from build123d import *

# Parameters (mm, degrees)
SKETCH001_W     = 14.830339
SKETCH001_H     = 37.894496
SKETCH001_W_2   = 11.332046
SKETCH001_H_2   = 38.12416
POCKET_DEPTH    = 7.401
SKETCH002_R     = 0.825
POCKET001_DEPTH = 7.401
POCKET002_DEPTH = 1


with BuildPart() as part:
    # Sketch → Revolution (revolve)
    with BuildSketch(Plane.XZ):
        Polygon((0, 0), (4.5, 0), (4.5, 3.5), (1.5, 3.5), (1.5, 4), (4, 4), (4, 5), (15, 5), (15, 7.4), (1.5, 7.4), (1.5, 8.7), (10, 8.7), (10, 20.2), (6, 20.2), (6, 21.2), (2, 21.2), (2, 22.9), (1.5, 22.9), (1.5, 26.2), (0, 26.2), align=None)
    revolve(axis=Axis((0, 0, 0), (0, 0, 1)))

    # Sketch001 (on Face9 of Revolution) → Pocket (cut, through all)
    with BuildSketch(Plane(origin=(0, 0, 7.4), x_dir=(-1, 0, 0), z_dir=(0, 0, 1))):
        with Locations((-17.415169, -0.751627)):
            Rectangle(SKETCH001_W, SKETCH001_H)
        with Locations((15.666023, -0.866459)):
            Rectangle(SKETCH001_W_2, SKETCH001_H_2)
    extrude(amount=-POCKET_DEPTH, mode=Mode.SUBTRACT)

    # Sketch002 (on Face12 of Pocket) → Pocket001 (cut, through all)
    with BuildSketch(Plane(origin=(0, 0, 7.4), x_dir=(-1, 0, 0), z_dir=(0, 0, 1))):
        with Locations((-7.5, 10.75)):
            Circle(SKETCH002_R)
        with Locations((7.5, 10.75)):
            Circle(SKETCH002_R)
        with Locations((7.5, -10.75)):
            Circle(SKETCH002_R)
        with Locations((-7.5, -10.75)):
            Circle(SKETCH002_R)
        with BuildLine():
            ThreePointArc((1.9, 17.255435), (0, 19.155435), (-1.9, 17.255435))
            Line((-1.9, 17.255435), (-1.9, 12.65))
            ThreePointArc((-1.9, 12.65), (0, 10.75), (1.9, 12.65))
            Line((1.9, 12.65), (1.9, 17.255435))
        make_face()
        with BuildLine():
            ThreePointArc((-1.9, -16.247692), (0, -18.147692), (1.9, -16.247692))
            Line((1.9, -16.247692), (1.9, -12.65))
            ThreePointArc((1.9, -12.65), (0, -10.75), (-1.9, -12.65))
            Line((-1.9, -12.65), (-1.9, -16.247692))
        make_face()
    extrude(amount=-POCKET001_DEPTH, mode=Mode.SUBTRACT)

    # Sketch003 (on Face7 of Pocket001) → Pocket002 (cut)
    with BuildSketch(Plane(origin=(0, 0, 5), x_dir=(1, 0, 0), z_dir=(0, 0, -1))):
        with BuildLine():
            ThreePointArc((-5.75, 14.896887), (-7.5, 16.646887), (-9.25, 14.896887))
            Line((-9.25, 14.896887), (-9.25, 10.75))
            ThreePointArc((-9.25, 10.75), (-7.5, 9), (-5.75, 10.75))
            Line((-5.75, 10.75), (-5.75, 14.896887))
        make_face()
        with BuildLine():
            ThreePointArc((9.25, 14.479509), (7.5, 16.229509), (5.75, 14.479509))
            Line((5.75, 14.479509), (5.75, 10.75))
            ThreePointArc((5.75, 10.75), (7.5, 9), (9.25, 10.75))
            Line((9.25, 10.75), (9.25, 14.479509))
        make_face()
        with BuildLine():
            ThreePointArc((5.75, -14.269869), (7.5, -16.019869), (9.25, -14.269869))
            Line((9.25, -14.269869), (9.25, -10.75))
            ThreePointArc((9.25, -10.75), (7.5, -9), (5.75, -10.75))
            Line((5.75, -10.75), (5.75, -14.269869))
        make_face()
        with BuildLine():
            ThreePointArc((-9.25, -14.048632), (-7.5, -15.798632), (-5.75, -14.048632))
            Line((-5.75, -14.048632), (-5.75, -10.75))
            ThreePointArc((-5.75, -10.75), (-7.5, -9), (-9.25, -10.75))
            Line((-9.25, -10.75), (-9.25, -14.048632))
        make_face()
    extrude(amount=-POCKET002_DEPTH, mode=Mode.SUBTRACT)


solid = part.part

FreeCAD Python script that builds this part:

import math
import FreeCAD as App
import Part
import Sketcher

V = App.Vector
Q = App.Units.Quantity


def add_polygon(sketch, points):
    """Adds a closed chain of lines whose ends are joined by coincident constraints."""
    first, n = sketch.GeometryCount, len(points)
    for a, b in zip(points, points[1:] + points[:1]):
        sketch.addGeometry(Part.LineSegment(App.Vector(*a, 0), App.Vector(*b, 0)), False)
    for i in range(n):
        sketch.addConstraint(Sketcher.Constraint("Coincident", first + i, 2, first + (i + 1) % n, 1))

doc = App.newDocument("Part")
body = doc.addObject("PartDesign::Body", "Body")

sketch1 = body.newObject("Sketcher::SketchObject", "Sketch")
sketch1.AttachmentSupport = (doc.getObject("XZ_Plane"), [""])
sketch1.MapMode = "FlatFace"
add_polygon(sketch1, [(0, 0), (4.5, 0), (4.5, 3.5), (1.5, 3.5), (1.5, 4), (4, 4), (4, 5), (15, 5), (15, 7.4), (1.5, 7.4), (1.5, 8.7), (10, 8.7), (10, 20.2), (6, 20.2), (6, 21.2), (2, 21.2), (2, 22.9), (1.5, 22.9), (1.5, 26.2), (0, 26.2)])
sketch1.addConstraint(Sketcher.Constraint("Horizontal", 0))
sketch1.addConstraint(Sketcher.Constraint("Vertical", 1))
sketch1.addConstraint(Sketcher.Constraint("Horizontal", 2))
sketch1.addConstraint(Sketcher.Constraint("Vertical", 3))
sketch1.addConstraint(Sketcher.Constraint("Horizontal", 4))
sketch1.addConstraint(Sketcher.Constraint("Vertical", 5))
sketch1.addConstraint(Sketcher.Constraint("Horizontal", 6))
sketch1.addConstraint(Sketcher.Constraint("Vertical", 7))
sketch1.addConstraint(Sketcher.Constraint("Horizontal", 8))
sketch1.addConstraint(Sketcher.Constraint("Vertical", 9))
sketch1.addConstraint(Sketcher.Constraint("Horizontal", 10))
sketch1.addConstraint(Sketcher.Constraint("Vertical", 11))
sketch1.addConstraint(Sketcher.Constraint("Horizontal", 12))
sketch1.addConstraint(Sketcher.Constraint("Vertical", 13))
sketch1.addConstraint(Sketcher.Constraint("Horizontal", 14))
sketch1.addConstraint(Sketcher.Constraint("Vertical", 15))
sketch1.addConstraint(Sketcher.Constraint("Horizontal", 16))
sketch1.addConstraint(Sketcher.Constraint("Vertical", 17))
sketch1.addConstraint(Sketcher.Constraint("Horizontal", 18))
sketch1.addConstraint(Sketcher.Constraint("Vertical", 19))
sketch1.addConstraint(Sketcher.Constraint("Coincident", 19, 2, -1, 1))
sketch1.addConstraint(Sketcher.Constraint("Vertical", 3, 2, 8, 2))
sketch1.addConstraint(Sketcher.Constraint("Vertical", 9, 2, 16, 2))
sketch1.addConstraint(Sketcher.Constraint("Equal", 12, 14))
sketch1.addConstraint(Sketcher.Constraint("Equal", 16, 3))
sketch1.addConstraint(Sketcher.Constraint("Equal", 5, 13))
sketch1.addConstraint(Sketcher.Constraint("DistanceX", 2, 2, 2, 1, Q("3 mm")))
sketch1.addConstraint(Sketcher.Constraint("DistanceX", 6, 1, 6, 2, Q("11 mm")))
sketch1.addConstraint(Sketcher.Constraint("DistanceX", 12, 2, 12, 1, Q("4 mm")))
sketch1.addConstraint(Sketcher.Constraint("DistanceY", 5, 1, 5, 2, Q("1 mm")))
sketch1.addConstraint(Sketcher.Constraint("DistanceX", 0, 1, 0, 2, Q("4.5 mm")))
sketch1.addConstraint(Sketcher.Constraint("DistanceX", 4, 1, 4, 2, Q("2.5 mm")))
sketch1.addConstraint(Sketcher.Constraint("DistanceX", 10, 1, 10, 2, Q("8.5 mm")))
sketch1.addConstraint(Sketcher.Constraint("DistanceY", 1, 1, 1, 2, Q("3.5 mm")))
sketch1.addConstraint(Sketcher.Constraint("DistanceY", 7, 1, 7, 2, Q("2.4 mm")))
sketch1.addConstraint(Sketcher.Constraint("DistanceY", 9, 1, 9, 2, Q("1.3 mm")))
sketch1.addConstraint(Sketcher.Constraint("DistanceY", 11, 1, 11, 2, Q("11.5 mm")))
sketch1.addConstraint(Sketcher.Constraint("DistanceY", 15, 1, 15, 2, Q("1.7 mm")))
sketch1.addConstraint(Sketcher.Constraint("DistanceY", 17, 1, 17, 2, Q("3.3 mm")))
revolution = body.newObject("PartDesign::Revolution", "Revolution")
revolution.Profile = sketch1
revolution.ReferenceAxis = (sketch1, ["V_Axis"])
revolution.Angle = 360

sketch2 = body.newObject("Sketcher::SketchObject", "Sketch001")
sketch2.AttachmentSupport = (doc.getObject("XY_Plane"), [""])
sketch2.MapMode = "FlatFace"
sketch2.AttachmentOffset = App.Placement(V(0, 0, 7.4), App.Rotation())
add_polygon(sketch2, [(25, -18), (25, 20), (10, 20), (10, -18)])
add_polygon(sketch2, [(-10, -18), (-10, 20), (-21, 20), (-21, -18)])
sketch2.addConstraint(Sketcher.Constraint("Vertical", 0))
sketch2.addConstraint(Sketcher.Constraint("Horizontal", 1))
sketch2.addConstraint(Sketcher.Constraint("Vertical", 2))
sketch2.addConstraint(Sketcher.Constraint("Horizontal", 3))
sketch2.addConstraint(Sketcher.Constraint("Vertical", 4))
sketch2.addConstraint(Sketcher.Constraint("Horizontal", 5))
sketch2.addConstraint(Sketcher.Constraint("Vertical", 6))
sketch2.addConstraint(Sketcher.Constraint("Horizontal", 7))
sketch2.addConstraint(Sketcher.Constraint("Symmetric", 2, 2, 7, 2, -2))
sketch2.addConstraint(Sketcher.Constraint("DistanceX", -1, 1, 1, 2, Q("9.999999 mm")))
sketch2.addConstraint(Sketcher.Constraint("DistanceX", 1, 2, 1, 1, Q("14.830339 mm")))
sketch2.addConstraint(Sketcher.Constraint("DistanceY", 4, 1, 4, 2, Q("38.12416 mm")))
sketch2.addConstraint(Sketcher.Constraint("DistanceX", 5, 2, 5, 1, Q("11.332046 mm")))
sketch2.addConstraint(Sketcher.Constraint("DistanceY", 0, 1, 0, 2, Q("37.894496 mm")))
sketch2.addConstraint(Sketcher.Constraint("DistanceY", 2, 2, -1, 1, Q("18.195621 mm")))
pocket1 = body.newObject("PartDesign::Pocket", "Pocket")
pocket1.Profile = sketch2
pocket1.Type = "ThroughAll"

sketch3 = body.newObject("Sketcher::SketchObject", "Sketch002")
sketch3.AttachmentSupport = (doc.getObject("XY_Plane"), [""])
sketch3.MapMode = "FlatFace"
sketch3.AttachmentOffset = App.Placement(V(0, 0, 7.4), App.Rotation())
sketch3.addGeometry(Part.Circle(V(7.5, -10.8, 0), V(0, 0, 1), 0.8), False)
sketch3.addGeometry(Part.Circle(V(-7.5, -10.8, 0), V(0, 0, 1), 0.8), False)
sketch3.addGeometry(Part.Circle(V(-7.5, 10.8, 0), V(0, 0, 1), 0.8), False)
sketch3.addGeometry(Part.Circle(V(7.5, 10.8, 0), V(0, 0, 1), 0.8), False)
sketch3.addGeometry(Part.ArcOfCircle(Part.Circle(V(0, -17.3, 0), V(0, 0, 1), 1.9), math.radians(180), math.radians(360)), False)
sketch3.addGeometry(Part.LineSegment(V(1.9, -17.3, 0), V(1.9, -12.7, 0)), False)
sketch3.addGeometry(Part.ArcOfCircle(Part.Circle(V(0, -12.7, 0), V(0, 0, 1), 1.9), math.radians(0), math.radians(180)), False)
sketch3.addGeometry(Part.LineSegment(V(-1.9, -12.7, 0), V(-1.9, -17.3, 0)), False)
sketch3.addGeometry(Part.ArcOfCircle(Part.Circle(V(0, 16.2, 0), V(0, 0, 1), 1.9), math.radians(0), math.radians(180)), False)
sketch3.addGeometry(Part.LineSegment(V(-1.9, 16.2, 0), V(-1.9, 12.7, 0)), False)
sketch3.addGeometry(Part.ArcOfCircle(Part.Circle(V(0, 12.7, 0), V(0, 0, 1), 1.9), math.radians(180), math.radians(360)), False)
sketch3.addGeometry(Part.LineSegment(V(1.9, 12.7, 0), V(1.9, 16.2, 0)), False)
sketch3.addConstraint(Sketcher.Constraint("Tangent", 4, 2, 5, 1))
sketch3.addConstraint(Sketcher.Constraint("Tangent", 5, 2, 6, 1))
sketch3.addConstraint(Sketcher.Constraint("Tangent", 6, 2, 7, 1))
sketch3.addConstraint(Sketcher.Constraint("Tangent", 7, 2, 4, 1))
sketch3.addConstraint(Sketcher.Constraint("Tangent", 8, 2, 9, 1))
sketch3.addConstraint(Sketcher.Constraint("Tangent", 9, 2, 10, 1))
sketch3.addConstraint(Sketcher.Constraint("Tangent", 10, 2, 11, 1))
sketch3.addConstraint(Sketcher.Constraint("Tangent", 11, 2, 8, 1))
sketch3.addConstraint(Sketcher.Constraint("Vertical", 5))
sketch3.addConstraint(Sketcher.Constraint("Vertical", 7))
sketch3.addConstraint(Sketcher.Constraint("Vertical", 9))
sketch3.addConstraint(Sketcher.Constraint("Vertical", 11))
sketch3.addConstraint(Sketcher.Constraint("Equal", 0, 1))
sketch3.addConstraint(Sketcher.Constraint("Equal", 1, 2))
sketch3.addConstraint(Sketcher.Constraint("Equal", 2, 3))
sketch3.addConstraint(Sketcher.Constraint("Equal", 6, 8))
sketch3.addConstraint(Sketcher.Constraint("Symmetric", 0, 3, 2, 3, -1, 1))
sketch3.addConstraint(Sketcher.Constraint("Symmetric", 1, 3, 3, 3, -1, 1))
sketch3.addConstraint(Sketcher.Constraint("Symmetric", 6, 3, 10, 3, -1, 1))
sketch3.addConstraint(Sketcher.Constraint("Symmetric", 0, 3, 1, 3, -2))
sketch3.addConstraint(Sketcher.Constraint("PointOnObject", 4, 3, -2))
sketch3.addConstraint(Sketcher.Constraint("Radius", 4, Q("1.9 mm")))
sketch3.addConstraint(Sketcher.Constraint("Diameter", 0, Q("1.65 mm")))
sketch3.addConstraint(Sketcher.Constraint("DistanceX", 1, 3, 0, 3, Q("15 mm")))
sketch3.addConstraint(Sketcher.Constraint("DistanceY", 1, 3, 2, 3, Q("21.5 mm")))
sketch3.addConstraint(Sketcher.Constraint("DistanceY", 6, 3, 0, 3, Q("1.9 mm")))
sketch3.addConstraint(Sketcher.Constraint("DistanceY", 5, 1, 5, 2, Q("4.605435 mm")))
sketch3.addConstraint(Sketcher.Constraint("DistanceY", 9, 2, 9, 1, Q("3.597692 mm")))
pocket2 = body.newObject("PartDesign::Pocket", "Pocket001")
pocket2.Profile = sketch3
pocket2.Type = "ThroughAll"

sketch4 = body.newObject("Sketcher::SketchObject", "Sketch003")
sketch4.AttachmentSupport = (doc.getObject("XY_Plane"), [""])
sketch4.MapMode = "FlatFace"
sketch4.AttachmentOffset = App.Placement(V(0, 0, 5), App.Rotation())
sketch4.addGeometry(Part.ArcOfCircle(Part.Circle(V(-7.5, -14.9, 0), V(0, 0, 1), 1.8), math.radians(180), math.radians(360)), False)
sketch4.addGeometry(Part.LineSegment(V(-9.2, -14.9, 0), V(-9.2, -10.8, 0)), False)
sketch4.addGeometry(Part.ArcOfCircle(Part.Circle(V(-7.5, -10.8, 0), V(0, 0, 1), 1.8), math.radians(0), math.radians(180)), False)
sketch4.addGeometry(Part.LineSegment(V(-5.8, -10.8, 0), V(-5.8, -14.9, 0)), False)
sketch4.addGeometry(Part.ArcOfCircle(Part.Circle(V(7.5, -14.5, 0), V(0, 0, 1), 1.8), math.radians(180), math.radians(360)), False)
sketch4.addGeometry(Part.LineSegment(V(5.8, -14.5, 0), V(5.8, -10.8, 0)), False)
sketch4.addGeometry(Part.ArcOfCircle(Part.Circle(V(7.5, -10.8, 0), V(0, 0, 1), 1.8), math.radians(0), math.radians(180)), False)
sketch4.addGeometry(Part.LineSegment(V(9.2, -10.8, 0), V(9.2, -14.5, 0)), False)
sketch4.addGeometry(Part.ArcOfCircle(Part.Circle(V(7.5, 14.3, 0), V(0, 0, 1), 1.8), math.radians(0), math.radians(180)), False)
sketch4.addGeometry(Part.LineSegment(V(9.2, 14.3, 0), V(9.2, 10.8, 0)), False)
sketch4.addGeometry(Part.ArcOfCircle(Part.Circle(V(7.5, 10.8, 0), V(0, 0, 1), 1.8), math.radians(180), math.radians(360)), False)
sketch4.addGeometry(Part.LineSegment(V(5.8, 10.8, 0), V(5.8, 14.3, 0)), False)
sketch4.addGeometry(Part.ArcOfCircle(Part.Circle(V(-7.5, 14, 0), V(0, 0, 1), 1.8), math.radians(0), math.radians(180)), False)
sketch4.addGeometry(Part.LineSegment(V(-5.8, 14, 0), V(-5.8, 10.8, 0)), False)
sketch4.addGeometry(Part.ArcOfCircle(Part.Circle(V(-7.5, 10.8, 0), V(0, 0, 1), 1.8), math.radians(180), math.radians(360)), False)
sketch4.addGeometry(Part.LineSegment(V(-9.2, 10.8, 0), V(-9.2, 14, 0)), False)
sketch4.addConstraint(Sketcher.Constraint("Tangent", 0, 1, 1, 1))
sketch4.addConstraint(Sketcher.Constraint("Tangent", 1, 2, 2, 2))
sketch4.addConstraint(Sketcher.Constraint("Tangent", 2, 1, 3, 1))
sketch4.addConstraint(Sketcher.Constraint("Tangent", 3, 2, 0, 2))
sketch4.addConstraint(Sketcher.Constraint("Tangent", 4, 1, 5, 1))
sketch4.addConstraint(Sketcher.Constraint("Tangent", 5, 2, 6, 2))
sketch4.addConstraint(Sketcher.Constraint("Tangent", 6, 1, 7, 1))
sketch4.addConstraint(Sketcher.Constraint("Tangent", 7, 2, 4, 2))
sketch4.addConstraint(Sketcher.Constraint("Tangent", 8, 1, 9, 1))
sketch4.addConstraint(Sketcher.Constraint("Tangent", 9, 2, 10, 2))
sketch4.addConstraint(Sketcher.Constraint("Tangent", 10, 1, 11, 1))
sketch4.addConstraint(Sketcher.Constraint("Tangent", 11, 2, 8, 2))
sketch4.addConstraint(Sketcher.Constraint("Tangent", 12, 1, 13, 1))
sketch4.addConstraint(Sketcher.Constraint("Tangent", 13, 2, 14, 2))
sketch4.addConstraint(Sketcher.Constraint("Tangent", 14, 1, 15, 1))
sketch4.addConstraint(Sketcher.Constraint("Tangent", 15, 2, 12, 2))
sketch4.addConstraint(Sketcher.Constraint("Vertical", 1))
sketch4.addConstraint(Sketcher.Constraint("Vertical", 3))
sketch4.addConstraint(Sketcher.Constraint("Vertical", 5))
sketch4.addConstraint(Sketcher.Constraint("Vertical", 7))
sketch4.addConstraint(Sketcher.Constraint("Vertical", 9))
sketch4.addConstraint(Sketcher.Constraint("Vertical", 11))
sketch4.addConstraint(Sketcher.Constraint("Vertical", 13))
sketch4.addConstraint(Sketcher.Constraint("Vertical", 15))
sketch4.addConstraint(Sketcher.Constraint("Equal", 2, 4))
sketch4.addConstraint(Sketcher.Constraint("Equal", 6, 8))
sketch4.addConstraint(Sketcher.Constraint("Equal", 10, 12))
sketch4.addConstraint(Sketcher.Constraint("Symmetric", 2, 3, 10, 3, -1, 1))
sketch4.addConstraint(Sketcher.Constraint("Symmetric", 6, 3, 14, 3, -1, 1))
sketch4.addConstraint(Sketcher.Constraint("Symmetric", 2, 3, 6, 3, -2))
sketch4.addConstraint(Sketcher.Constraint("Radius", 0, Q("1.75 mm")))
sketch4.addConstraint(Sketcher.Constraint("DistanceX", 0, 3, 4, 3, Q("15 mm")))
sketch4.addConstraint(Sketcher.Constraint("DistanceY", 6, 3, 10, 3, Q("21.5 mm")))
sketch4.addConstraint(Sketcher.Constraint("DistanceY", 5, 1, 5, 2, Q("3.729509 mm")))
sketch4.addConstraint(Sketcher.Constraint("DistanceY", 9, 2, 9, 1, Q("3.519869 mm")))
sketch4.addConstraint(Sketcher.Constraint("DistanceY", 13, 2, 13, 1, Q("3.298632 mm")))
sketch4.addConstraint(Sketcher.Constraint("DistanceY", 1, 1, 1, 2, Q("4.146887 mm")))
pocket3 = body.newObject("PartDesign::Pocket", "Pocket002")
pocket3.Profile = sketch4
pocket3.Length = 1
pocket3.Reversed = True

doc.recompute()
